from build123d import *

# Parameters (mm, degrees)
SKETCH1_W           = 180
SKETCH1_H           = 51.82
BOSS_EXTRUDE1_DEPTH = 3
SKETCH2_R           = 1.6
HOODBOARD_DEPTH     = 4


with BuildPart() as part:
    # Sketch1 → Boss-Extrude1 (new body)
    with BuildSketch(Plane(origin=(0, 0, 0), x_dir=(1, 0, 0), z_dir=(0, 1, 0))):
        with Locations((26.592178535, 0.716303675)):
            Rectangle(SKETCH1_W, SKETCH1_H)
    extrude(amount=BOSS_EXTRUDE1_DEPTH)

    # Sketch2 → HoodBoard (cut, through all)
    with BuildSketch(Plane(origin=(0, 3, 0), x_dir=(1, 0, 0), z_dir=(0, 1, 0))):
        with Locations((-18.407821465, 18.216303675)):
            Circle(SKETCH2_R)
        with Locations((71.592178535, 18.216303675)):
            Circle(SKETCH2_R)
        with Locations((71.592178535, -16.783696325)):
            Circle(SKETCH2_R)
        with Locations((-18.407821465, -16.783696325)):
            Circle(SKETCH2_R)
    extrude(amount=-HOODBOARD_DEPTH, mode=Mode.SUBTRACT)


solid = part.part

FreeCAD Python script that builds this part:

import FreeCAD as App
import Part
import Sketcher

doc = App.newDocument("Part")
params = doc.addObject("Spreadsheet::Sheet", "Params")
for row, (alias, value) in enumerate([
    ("sketch1_width", "180 mm"),
    ("sketch1_height", "51.82 mm"),
    ("pad1_length", "3 mm"),
    ("sketch2_diameter", "3.2 mm"),
], start=1):
    params.set(f"A{row}", alias)
    params.set(f"B{row}", "=" + value)
    params.setAlias(f"B{row}", alias)

body = doc.addObject("PartDesign::Body", "Body")

# Sketch on XZ plane
sketch1 = doc.addObject("Sketcher::SketchObject", "Sketch")
body.addObject(sketch1)
sketch1.AttachmentSupport = (doc.XZ_Plane, [""])
sketch1.MapMode = "FlatFace"
sketch1.addGeometry(Part.LineSegment(App.Vector(-63, -27, 0), App.Vector(-63, 25, 0)), False)
sketch1.addGeometry(Part.LineSegment(App.Vector(-63, 25, 0), App.Vector(117, 25, 0)), False)
sketch1.addGeometry(Part.LineSegment(App.Vector(117, 25, 0), App.Vector(117, -27, 0)), False)
sketch1.addGeometry(Part.LineSegment(App.Vector(117, -27, 0), App.Vector(-63, -27, 0)), False)
sketch1.addConstraint(Sketcher.Constraint("Coincident", 0, 2, 1, 1))
sketch1.addConstraint(Sketcher.Constraint("Coincident", 1, 2, 2, 1))
sketch1.addConstraint(Sketcher.Constraint("Coincident", 2, 2, 3, 1))
sketch1.addConstraint(Sketcher.Constraint("Coincident", 3, 2, 0, 1))
sketch1.addConstraint(Sketcher.Constraint("Vertical", 0))
sketch1.addConstraint(Sketcher.Constraint("Horizontal", 1))
sketch1.addConstraint(Sketcher.Constraint("Vertical", 2))
sketch1.addConstraint(Sketcher.Constraint("Horizontal", 3))
sketch1.addConstraint(Sketcher.Constraint("DistanceX", 1, 1, 1, 2, 180.0))
sketch1.addConstraint(Sketcher.Constraint("DistanceY", 0, 1, 0, 2, 51.82))
sketch1.addConstraint(Sketcher.Constraint("DistanceX", 0, 2, -1, 1, 63.407821))
sketch1.addConstraint(Sketcher.Constraint("DistanceY", -1, 1, 0, 2, 25.193696))
sketch1.setExpression("Constraints[8]", "Params.sketch1_width")
sketch1.setExpression("Constraints[9]", "Params.sketch1_height")
pad1 = doc.addObject("PartDesign::Pad", "Pad")
body.addObject(pad1)
pad1.Profile = sketch1
pad1.setExpression("Length", "Params.pad1_length")
pad1.Reversed = True

# Sketch on XZ plane
sketch2 = doc.addObject("Sketcher::SketchObject", "Sketch001")
body.addObject(sketch2)
sketch2.AttachmentSupport = (doc.XZ_Plane, [""])
sketch2.MapMode = "FlatFace"
sketch2.AttachmentOffset = App.Placement(App.Vector(0, 0, -3), App.Rotation())
sketch2.addGeometry(Part.Circle(App.Vector(-18.4, -18.2, 0), App.Vector(0, 0, 1), 1.6), False)
sketch2.addGeometry(Part.Circle(App.Vector(71.6, -18.2, 0), App.Vector(0, 0, 1), 1.6), False)
sketch2.addGeometry(Part.Circle(App.Vector(71.6, 16.8, 0), App.Vector(0, 0, 1), 1.6), False)
sketch2.addGeometry(Part.Circle(App.Vector(-18.4, 16.8, 0), App.Vector(0, 0, 1), 1.6), False)
sketch2.addConstraint(Sketcher.Constraint("Equal", 0, 1))
sketch2.addConstraint(Sketcher.Constraint("Equal", 1, 2))
sketch2.addConstraint(Sketcher.Constraint("Equal", 2, 3))
sketch2.addConstraint(Sketcher.Constraint("Horizontal", 0, 3, 1, 3))
sketch2.addConstraint(Sketcher.Constraint("Horizontal", 2, 3, 3, 3))
sketch2.addConstraint(Sketcher.Constraint("Vertical", 1, 3, 2, 3))
sketch2.addConstraint(Sketcher.Constraint("Vertical", 0, 3, 3, 3))
sketch2.addConstraint(Sketcher.Constraint("Diameter", 0, 3.2))
sketch2.addConstraint(Sketcher.Constraint("DistanceX", 0, 3, 1, 3, 90.0))
sketch2.addConstraint(Sketcher.Constraint("DistanceY", 1, 3, 2, 3, 35.0))
sketch2.addConstraint(Sketcher.Constraint("DistanceX", 0, 3, -1, 1, 18.407821))
sketch2.addConstraint(Sketcher.Constraint("DistanceY", 0, 3, -1, 1, 18.216304))
sketch2.setExpression("Constraints[7]", "Params.sketch2_diameter")
pocket1 = doc.addObject("PartDesign::Pocket", "Pocket")
body.addObject(pocket1)
pocket1.Profile = sketch2
pocket1.Type = "ThroughAll"
pocket1.Reversed = True

doc.recompute()
